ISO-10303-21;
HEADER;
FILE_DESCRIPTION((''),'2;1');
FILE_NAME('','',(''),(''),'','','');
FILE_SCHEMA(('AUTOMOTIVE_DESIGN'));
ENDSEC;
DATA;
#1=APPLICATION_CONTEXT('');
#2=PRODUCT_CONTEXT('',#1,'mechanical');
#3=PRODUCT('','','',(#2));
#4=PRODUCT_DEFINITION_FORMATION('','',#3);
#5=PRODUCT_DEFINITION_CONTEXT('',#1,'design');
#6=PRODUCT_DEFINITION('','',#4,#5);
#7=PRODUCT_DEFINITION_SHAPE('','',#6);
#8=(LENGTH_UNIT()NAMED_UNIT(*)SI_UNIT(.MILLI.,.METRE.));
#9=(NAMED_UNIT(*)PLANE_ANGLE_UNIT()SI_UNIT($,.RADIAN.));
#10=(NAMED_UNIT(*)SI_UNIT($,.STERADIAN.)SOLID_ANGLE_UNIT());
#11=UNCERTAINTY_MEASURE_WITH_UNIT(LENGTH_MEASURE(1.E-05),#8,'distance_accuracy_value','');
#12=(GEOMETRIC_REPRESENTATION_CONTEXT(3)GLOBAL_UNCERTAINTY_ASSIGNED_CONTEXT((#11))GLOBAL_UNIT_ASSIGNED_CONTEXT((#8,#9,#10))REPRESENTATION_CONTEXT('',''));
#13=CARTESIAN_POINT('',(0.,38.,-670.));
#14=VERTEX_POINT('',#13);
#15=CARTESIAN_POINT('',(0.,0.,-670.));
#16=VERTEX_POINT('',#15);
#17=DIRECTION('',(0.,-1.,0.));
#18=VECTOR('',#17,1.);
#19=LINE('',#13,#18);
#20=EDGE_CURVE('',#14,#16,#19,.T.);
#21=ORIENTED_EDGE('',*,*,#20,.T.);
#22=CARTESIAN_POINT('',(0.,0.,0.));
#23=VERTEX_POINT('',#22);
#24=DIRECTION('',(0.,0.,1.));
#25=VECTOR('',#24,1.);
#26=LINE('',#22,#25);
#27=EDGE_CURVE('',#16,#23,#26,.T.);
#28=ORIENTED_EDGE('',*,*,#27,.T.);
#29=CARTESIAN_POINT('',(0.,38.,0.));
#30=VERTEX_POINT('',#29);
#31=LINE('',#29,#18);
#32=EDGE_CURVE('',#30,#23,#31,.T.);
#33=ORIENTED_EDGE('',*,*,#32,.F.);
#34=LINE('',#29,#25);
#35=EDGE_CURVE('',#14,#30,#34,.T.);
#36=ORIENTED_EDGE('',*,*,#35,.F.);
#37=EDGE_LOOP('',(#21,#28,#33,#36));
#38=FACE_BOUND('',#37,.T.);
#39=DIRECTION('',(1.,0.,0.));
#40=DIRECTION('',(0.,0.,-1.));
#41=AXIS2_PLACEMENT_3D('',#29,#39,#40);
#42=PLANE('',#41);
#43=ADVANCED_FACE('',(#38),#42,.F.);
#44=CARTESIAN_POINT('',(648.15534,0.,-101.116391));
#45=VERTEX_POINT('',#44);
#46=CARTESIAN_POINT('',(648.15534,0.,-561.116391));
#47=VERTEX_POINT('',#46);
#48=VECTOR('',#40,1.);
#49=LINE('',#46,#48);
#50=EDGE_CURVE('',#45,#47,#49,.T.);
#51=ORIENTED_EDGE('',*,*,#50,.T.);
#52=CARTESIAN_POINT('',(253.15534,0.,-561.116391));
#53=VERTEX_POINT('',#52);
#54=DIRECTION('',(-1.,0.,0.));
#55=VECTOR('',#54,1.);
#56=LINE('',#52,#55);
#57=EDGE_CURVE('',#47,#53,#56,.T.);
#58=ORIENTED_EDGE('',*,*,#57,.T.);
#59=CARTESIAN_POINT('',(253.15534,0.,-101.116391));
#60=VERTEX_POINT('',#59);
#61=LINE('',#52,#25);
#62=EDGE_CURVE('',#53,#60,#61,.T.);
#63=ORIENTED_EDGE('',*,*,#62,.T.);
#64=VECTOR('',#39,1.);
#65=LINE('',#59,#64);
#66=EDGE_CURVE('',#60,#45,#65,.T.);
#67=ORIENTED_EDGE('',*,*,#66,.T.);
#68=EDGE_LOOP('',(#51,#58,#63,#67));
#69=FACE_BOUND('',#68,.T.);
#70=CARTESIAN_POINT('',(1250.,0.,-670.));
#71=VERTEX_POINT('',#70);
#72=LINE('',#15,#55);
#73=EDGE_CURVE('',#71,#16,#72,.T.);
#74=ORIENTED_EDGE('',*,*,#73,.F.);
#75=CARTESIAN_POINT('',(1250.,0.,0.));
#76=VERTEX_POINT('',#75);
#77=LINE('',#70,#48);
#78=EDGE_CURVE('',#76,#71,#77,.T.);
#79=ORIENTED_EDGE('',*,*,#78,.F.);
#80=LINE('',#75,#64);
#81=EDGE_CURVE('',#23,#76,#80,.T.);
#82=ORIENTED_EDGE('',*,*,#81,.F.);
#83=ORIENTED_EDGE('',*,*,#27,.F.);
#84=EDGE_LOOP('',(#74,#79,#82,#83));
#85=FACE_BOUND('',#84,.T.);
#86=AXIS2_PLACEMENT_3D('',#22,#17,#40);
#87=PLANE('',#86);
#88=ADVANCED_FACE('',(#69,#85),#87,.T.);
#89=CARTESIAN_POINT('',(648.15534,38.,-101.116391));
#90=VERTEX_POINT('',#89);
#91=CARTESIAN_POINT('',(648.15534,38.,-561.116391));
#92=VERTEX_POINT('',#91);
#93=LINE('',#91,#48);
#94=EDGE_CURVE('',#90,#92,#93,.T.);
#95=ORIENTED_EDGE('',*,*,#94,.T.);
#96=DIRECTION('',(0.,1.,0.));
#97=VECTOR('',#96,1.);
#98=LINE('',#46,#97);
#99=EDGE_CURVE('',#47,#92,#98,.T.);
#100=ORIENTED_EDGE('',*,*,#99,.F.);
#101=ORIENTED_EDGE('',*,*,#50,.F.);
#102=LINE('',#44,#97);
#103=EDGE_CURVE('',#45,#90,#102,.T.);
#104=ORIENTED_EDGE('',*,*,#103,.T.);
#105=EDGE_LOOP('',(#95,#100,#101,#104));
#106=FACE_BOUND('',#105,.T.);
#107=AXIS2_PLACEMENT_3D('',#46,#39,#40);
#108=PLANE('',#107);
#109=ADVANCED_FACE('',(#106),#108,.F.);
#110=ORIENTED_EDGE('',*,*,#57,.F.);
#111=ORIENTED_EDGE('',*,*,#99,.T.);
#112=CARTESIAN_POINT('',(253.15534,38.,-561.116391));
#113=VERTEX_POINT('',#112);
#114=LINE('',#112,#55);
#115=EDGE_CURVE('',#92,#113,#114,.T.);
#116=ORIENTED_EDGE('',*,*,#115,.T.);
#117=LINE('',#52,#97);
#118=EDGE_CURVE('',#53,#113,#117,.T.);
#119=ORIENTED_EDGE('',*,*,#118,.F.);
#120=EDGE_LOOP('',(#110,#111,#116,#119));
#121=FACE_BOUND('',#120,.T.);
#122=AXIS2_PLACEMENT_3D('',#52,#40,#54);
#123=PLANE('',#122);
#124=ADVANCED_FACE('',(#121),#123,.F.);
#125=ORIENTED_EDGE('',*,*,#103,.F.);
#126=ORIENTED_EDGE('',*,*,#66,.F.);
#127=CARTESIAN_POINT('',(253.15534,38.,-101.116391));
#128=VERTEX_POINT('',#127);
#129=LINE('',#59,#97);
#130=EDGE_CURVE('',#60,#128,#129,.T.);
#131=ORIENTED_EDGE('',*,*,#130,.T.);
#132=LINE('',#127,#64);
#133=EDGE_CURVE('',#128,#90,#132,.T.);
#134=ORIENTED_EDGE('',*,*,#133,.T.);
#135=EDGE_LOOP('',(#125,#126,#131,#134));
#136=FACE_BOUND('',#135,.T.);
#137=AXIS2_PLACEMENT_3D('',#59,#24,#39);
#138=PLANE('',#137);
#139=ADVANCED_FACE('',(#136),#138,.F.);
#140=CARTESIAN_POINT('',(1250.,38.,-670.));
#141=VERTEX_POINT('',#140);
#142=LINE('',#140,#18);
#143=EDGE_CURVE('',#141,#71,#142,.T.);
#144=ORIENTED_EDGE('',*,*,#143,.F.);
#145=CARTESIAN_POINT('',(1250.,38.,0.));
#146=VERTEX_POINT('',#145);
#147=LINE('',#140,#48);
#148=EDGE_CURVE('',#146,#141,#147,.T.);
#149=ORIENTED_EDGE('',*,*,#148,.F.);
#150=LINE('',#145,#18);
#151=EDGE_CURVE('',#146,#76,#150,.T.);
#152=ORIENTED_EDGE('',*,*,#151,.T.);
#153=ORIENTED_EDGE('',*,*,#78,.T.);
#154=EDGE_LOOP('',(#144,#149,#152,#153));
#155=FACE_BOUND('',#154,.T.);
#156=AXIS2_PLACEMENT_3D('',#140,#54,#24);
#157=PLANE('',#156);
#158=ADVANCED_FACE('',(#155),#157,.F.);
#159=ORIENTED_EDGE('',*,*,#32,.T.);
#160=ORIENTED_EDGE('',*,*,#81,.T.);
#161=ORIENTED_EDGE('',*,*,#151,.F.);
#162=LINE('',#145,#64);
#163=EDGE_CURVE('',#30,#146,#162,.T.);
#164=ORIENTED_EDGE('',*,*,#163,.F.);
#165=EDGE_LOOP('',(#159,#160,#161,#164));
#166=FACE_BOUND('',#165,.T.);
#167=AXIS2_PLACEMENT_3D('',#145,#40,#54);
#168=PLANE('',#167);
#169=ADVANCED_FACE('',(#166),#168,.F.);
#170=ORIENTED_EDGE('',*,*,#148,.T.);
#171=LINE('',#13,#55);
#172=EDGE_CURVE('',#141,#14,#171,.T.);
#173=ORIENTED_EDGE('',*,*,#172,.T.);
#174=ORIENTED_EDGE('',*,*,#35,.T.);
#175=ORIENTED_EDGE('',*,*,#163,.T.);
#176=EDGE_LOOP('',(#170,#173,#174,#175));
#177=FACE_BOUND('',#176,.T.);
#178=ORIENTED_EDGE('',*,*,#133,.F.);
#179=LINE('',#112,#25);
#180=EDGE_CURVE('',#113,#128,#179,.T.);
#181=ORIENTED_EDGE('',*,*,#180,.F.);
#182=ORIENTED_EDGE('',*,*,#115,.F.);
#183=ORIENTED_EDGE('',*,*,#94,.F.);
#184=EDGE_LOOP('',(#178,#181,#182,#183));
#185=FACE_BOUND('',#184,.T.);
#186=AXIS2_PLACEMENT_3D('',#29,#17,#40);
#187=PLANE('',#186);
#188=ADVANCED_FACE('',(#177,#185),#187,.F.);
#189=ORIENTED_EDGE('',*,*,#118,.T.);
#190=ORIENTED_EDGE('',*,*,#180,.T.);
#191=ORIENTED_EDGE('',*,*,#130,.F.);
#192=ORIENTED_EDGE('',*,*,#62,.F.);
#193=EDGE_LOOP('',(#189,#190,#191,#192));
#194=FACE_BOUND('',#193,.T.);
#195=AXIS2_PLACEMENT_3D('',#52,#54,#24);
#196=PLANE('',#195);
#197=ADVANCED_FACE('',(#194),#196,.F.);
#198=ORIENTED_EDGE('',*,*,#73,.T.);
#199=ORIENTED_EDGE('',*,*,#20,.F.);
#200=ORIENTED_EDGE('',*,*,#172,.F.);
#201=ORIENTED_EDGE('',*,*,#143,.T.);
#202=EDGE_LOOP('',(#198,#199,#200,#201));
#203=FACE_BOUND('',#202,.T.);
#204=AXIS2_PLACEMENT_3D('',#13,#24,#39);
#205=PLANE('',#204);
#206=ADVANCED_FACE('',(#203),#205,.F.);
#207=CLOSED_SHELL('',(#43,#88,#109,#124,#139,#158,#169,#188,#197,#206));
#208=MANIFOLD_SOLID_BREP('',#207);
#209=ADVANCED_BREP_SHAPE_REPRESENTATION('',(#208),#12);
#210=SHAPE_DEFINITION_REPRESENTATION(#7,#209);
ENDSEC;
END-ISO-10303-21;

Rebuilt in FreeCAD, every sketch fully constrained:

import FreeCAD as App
import Part
import Sketcher
from FreeCAD import Vector
Q = App.Units.Quantity

doc = App.newDocument("Part")
body = doc.addObject("PartDesign::Body", "Body")

# Sketch on XZ plane
sketch1 = body.newObject("Sketcher::SketchObject", "Sketch")
sketch1.AttachmentSupport = (doc.getObject("XZ_Plane"), [""])
sketch1.MapMode = "FlatFace"
sketch1.addGeometry([
    Part.LineSegment(Vector(0, -670, 0), Vector(0, 0, 0)),
    Part.LineSegment(Vector(0, 0, 0), Vector(1250, 0, 0)),
    Part.LineSegment(Vector(1250, 0, 0), Vector(1250, -670, 0)),
    Part.LineSegment(Vector(1250, -670, 0), Vector(0, -670, 0)),
], False)
sketch1.addConstraint([
    Sketcher.Constraint("Coincident", 0, 2, 1, 1),
    Sketcher.Constraint("Coincident", 1, 2, 2, 1),
    Sketcher.Constraint("Coincident", 2, 2, 3, 1),
    Sketcher.Constraint("Coincident", 3, 2, 0, 1),
    Sketcher.Constraint("Vertical", 0),
    Sketcher.Constraint("Horizontal", 1),
    Sketcher.Constraint("Vertical", 2),
    Sketcher.Constraint("Horizontal", 3),
    Sketcher.Constraint("Coincident", 0, 2, -1, 1),
    Sketcher.Constraint("DistanceX", 1, 1, 1, 2, Q("1250 mm")),
    Sketcher.Constraint("DistanceY", 0, 1, 0, 2, Q("670 mm")),
])
pad1 = body.newObject("PartDesign::Pad", "Pad")
pad1.Profile = sketch1
pad1.Length = 38
pad1.Reversed = True

# Sketch on XZ plane
sketch2 = body.newObject("Sketcher::SketchObject", "Sketch001")
sketch2.AttachmentSupport = (doc.getObject("XZ_Plane"), [""])
sketch2.MapMode = "FlatFace"
sketch2.AttachmentOffset = App.Placement(Vector(0, 0, -38), App.Rotation())
sketch2.addGeometry([
    Part.LineSegment(Vector(253, -561, 0), Vector(253, -101, 0)),
    Part.LineSegment(Vector(253, -101, 0), Vector(648, -101, 0)),
    Part.LineSegment(Vector(648, -101, 0), Vector(648, -561, 0)),
    Part.LineSegment(Vector(648, -561, 0), Vector(253, -561, 0)),
], False)
sketch2.addConstraint([
    Sketcher.Constraint("Coincident", 0, 2, 1, 1),
    Sketcher.Constraint("Coincident", 1, 2, 2, 1),
    Sketcher.Constraint("Coincident", 2, 2, 3, 1),
    Sketcher.Constraint("Coincident", 3, 2, 0, 1),
    Sketcher.Constraint("Vertical", 0),
    Sketcher.Constraint("Horizontal", 1),
    Sketcher.Constraint("Vertical", 2),
    Sketcher.Constraint("Horizontal", 3),
    Sketcher.Constraint("DistanceX", 1, 1, 1, 2, Q("395 mm")),
    Sketcher.Constraint("DistanceY", 0, 1, 0, 2, Q("460 mm")),
    Sketcher.Constraint("DistanceX", -1, 1, 0, 2, Q("253.15534 mm")),
    Sketcher.Constraint("DistanceY", 0, 2, -1, 1, Q("101.116391 mm")),
])
pocket1 = body.newObject("PartDesign::Pocket", "Pocket")
pocket1.Profile = sketch2
pocket1.Type = "ThroughAll"
pocket1.Reversed = True

doc.recompute()
